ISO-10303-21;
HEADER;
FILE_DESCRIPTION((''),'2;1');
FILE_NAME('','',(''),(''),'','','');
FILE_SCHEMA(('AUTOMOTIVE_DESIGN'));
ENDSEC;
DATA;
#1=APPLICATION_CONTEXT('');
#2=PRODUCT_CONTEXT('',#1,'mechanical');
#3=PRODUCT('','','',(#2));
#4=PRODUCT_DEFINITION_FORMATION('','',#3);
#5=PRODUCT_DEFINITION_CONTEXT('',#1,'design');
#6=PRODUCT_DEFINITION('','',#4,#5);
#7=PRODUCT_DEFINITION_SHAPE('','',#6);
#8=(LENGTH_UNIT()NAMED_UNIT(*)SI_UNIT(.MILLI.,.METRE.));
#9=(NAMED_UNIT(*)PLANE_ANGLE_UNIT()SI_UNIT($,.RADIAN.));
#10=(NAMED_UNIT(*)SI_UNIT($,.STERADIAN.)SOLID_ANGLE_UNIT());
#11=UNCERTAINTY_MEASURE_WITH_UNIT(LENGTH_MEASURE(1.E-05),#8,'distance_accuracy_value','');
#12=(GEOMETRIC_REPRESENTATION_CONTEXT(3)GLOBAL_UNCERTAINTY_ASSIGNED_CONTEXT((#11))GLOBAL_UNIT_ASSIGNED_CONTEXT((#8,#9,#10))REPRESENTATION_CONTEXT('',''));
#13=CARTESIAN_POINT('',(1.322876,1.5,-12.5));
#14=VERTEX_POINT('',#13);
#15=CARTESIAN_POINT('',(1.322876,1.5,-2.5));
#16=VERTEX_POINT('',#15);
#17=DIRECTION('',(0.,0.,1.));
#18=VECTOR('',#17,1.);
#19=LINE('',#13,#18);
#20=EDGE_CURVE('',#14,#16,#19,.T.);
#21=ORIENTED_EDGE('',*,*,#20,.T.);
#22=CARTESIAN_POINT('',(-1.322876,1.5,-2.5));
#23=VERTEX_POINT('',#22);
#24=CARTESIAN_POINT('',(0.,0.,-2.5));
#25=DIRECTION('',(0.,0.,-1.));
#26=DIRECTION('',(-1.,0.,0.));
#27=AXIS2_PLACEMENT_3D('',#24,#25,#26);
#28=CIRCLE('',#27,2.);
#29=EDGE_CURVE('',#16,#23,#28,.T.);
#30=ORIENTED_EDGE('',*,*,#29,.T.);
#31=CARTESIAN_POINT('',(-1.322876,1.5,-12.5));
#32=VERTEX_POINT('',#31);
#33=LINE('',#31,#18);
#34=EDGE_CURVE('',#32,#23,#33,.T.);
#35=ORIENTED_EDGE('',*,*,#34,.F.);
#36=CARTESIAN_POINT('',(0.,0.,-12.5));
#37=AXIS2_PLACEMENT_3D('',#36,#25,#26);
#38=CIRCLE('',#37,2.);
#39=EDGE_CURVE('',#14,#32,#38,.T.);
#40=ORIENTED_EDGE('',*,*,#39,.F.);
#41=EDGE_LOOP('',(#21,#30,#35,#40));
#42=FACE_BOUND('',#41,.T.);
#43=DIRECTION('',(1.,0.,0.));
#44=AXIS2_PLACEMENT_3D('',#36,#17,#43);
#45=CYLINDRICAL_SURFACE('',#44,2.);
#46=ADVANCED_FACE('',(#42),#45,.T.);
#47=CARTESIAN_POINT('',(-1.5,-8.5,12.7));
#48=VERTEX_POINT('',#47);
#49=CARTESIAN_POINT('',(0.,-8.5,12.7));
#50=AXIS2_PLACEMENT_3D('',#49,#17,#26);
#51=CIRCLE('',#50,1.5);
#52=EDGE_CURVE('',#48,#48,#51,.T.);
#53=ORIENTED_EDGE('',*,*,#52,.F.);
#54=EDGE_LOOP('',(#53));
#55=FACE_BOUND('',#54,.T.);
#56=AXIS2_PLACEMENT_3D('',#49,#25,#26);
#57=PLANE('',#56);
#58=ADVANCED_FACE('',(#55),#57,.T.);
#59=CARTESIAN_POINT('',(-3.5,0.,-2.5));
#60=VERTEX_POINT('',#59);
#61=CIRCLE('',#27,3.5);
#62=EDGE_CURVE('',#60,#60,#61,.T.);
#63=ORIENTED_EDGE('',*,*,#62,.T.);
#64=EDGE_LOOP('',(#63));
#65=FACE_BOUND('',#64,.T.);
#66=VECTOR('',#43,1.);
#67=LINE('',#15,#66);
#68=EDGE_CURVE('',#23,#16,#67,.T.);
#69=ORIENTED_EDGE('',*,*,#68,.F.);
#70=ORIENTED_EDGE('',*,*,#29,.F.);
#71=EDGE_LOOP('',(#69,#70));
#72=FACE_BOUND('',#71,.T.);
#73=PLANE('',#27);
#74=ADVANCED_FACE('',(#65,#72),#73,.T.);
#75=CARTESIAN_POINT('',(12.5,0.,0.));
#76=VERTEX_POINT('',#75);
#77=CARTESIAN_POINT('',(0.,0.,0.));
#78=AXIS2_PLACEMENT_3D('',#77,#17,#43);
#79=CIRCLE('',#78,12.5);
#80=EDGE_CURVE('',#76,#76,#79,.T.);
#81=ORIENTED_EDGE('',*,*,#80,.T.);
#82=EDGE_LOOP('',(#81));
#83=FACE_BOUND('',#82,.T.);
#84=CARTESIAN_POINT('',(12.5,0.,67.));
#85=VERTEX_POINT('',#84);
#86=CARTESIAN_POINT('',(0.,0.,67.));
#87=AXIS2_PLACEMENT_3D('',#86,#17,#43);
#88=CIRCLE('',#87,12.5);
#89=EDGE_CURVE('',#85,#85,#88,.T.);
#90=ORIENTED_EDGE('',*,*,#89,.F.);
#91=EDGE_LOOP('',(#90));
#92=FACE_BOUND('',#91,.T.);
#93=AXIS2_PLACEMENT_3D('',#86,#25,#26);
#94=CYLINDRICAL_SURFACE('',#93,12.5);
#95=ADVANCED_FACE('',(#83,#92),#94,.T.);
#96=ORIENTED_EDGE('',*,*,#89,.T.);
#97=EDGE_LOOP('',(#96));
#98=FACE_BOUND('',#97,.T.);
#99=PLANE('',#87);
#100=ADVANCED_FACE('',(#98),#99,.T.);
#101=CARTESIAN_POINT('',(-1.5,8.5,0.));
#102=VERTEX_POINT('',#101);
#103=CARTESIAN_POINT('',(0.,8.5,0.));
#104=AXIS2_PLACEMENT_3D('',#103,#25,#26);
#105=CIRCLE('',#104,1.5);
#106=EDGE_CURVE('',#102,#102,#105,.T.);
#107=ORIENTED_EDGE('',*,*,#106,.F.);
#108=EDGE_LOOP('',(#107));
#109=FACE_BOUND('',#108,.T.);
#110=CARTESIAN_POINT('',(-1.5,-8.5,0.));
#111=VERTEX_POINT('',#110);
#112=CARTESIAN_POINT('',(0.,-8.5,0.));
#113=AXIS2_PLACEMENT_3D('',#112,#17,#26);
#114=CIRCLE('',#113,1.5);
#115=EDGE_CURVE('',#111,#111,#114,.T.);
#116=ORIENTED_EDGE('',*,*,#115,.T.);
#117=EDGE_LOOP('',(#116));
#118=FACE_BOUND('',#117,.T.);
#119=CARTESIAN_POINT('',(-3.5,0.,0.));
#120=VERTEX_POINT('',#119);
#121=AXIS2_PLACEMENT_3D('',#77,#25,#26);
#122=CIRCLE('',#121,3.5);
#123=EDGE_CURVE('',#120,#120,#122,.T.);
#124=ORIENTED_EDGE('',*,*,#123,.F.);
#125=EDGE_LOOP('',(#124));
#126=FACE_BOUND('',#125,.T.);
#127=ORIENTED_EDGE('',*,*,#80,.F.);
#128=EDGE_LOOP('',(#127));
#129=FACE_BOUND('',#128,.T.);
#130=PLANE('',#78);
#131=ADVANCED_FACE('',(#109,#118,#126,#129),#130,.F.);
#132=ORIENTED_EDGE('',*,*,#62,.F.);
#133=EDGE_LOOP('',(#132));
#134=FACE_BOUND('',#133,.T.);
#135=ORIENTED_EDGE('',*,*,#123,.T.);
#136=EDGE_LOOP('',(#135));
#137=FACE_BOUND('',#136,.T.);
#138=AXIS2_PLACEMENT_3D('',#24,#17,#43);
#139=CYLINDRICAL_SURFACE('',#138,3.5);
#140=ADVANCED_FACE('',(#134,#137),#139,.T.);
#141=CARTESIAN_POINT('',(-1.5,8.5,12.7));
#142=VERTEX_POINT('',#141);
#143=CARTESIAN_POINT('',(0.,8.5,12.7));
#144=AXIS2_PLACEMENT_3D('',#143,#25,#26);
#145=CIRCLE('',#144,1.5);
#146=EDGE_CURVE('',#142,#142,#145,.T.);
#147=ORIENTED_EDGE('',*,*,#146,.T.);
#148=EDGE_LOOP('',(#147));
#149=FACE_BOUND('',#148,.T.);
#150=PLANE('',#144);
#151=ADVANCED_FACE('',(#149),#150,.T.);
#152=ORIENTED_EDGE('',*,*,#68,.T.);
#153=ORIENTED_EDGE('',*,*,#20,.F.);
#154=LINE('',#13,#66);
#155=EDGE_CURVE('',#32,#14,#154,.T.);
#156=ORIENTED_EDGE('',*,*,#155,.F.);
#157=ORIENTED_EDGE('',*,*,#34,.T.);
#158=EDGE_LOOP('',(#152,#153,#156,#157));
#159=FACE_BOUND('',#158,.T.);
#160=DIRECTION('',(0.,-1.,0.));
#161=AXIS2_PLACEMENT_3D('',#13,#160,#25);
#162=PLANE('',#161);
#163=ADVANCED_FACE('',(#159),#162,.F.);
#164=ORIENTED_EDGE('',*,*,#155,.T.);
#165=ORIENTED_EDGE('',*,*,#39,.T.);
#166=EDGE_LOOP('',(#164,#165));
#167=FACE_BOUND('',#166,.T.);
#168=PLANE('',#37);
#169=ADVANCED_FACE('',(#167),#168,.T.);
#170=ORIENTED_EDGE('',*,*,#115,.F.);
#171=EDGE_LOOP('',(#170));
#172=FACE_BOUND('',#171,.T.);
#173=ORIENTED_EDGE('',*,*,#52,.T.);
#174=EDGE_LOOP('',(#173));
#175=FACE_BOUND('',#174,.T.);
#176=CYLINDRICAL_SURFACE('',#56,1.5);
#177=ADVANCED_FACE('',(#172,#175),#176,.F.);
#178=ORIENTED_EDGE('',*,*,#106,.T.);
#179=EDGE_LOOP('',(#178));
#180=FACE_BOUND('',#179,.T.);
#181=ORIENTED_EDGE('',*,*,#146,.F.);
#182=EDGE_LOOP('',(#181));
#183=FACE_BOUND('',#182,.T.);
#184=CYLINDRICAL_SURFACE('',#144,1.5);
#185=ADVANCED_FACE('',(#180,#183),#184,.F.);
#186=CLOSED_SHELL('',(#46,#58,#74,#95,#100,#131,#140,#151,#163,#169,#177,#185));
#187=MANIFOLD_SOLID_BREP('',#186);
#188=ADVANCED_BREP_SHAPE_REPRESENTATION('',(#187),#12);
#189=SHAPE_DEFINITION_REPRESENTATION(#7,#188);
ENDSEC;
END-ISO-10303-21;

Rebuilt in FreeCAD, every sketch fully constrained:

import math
import FreeCAD as App
import Part
import Sketcher
from FreeCAD import Vector
Q = App.Units.Quantity

doc = App.newDocument("Part")
body = doc.addObject("PartDesign::Body", "Body")

# Sketch on XY plane
sketch1 = body.newObject("Sketcher::SketchObject", "Sketch")
sketch1.AttachmentSupport = (doc.getObject("XY_Plane"), [""])
sketch1.MapMode = "FlatFace"
sketch1.addGeometry(Part.Circle(Vector(0, 0, 0), Vector(0, 0, 1), 12.5), False)
sketch1.addConstraint([
    Sketcher.Constraint("Coincident", 0, 3, -1, 1),
    Sketcher.Constraint("Diameter", 0, Q("25 mm")),
])
pad1 = body.newObject("PartDesign::Pad", "Pad")
pad1.Profile = sketch1
pad1.Length = 67

# Sketch on XY plane
sketch2 = body.newObject("Sketcher::SketchObject", "Sketch001")
sketch2.AttachmentSupport = (doc.getObject("XY_Plane"), [""])
sketch2.MapMode = "FlatFace"
sketch2.addGeometry(Part.Circle(Vector(0, 0, 0), Vector(0, 0, 1), 3.5), False)
sketch2.addConstraint([
    Sketcher.Constraint("Coincident", 0, 3, -1, 1),
    Sketcher.Constraint("Diameter", 0, Q("7 mm")),
])
pad2 = body.newObject("PartDesign::Pad", "Pad001")
pad2.Profile = sketch2
pad2.Length = 2.5
pad2.Reversed = True

# Sketch on XY plane
sketch3 = body.newObject("Sketcher::SketchObject", "Sketch002")
sketch3.AttachmentSupport = (doc.getObject("XY_Plane"), [""])
sketch3.MapMode = "FlatFace"
sketch3.AttachmentOffset = App.Placement(Vector(0, 0, -2.5), App.Rotation())
sketch3.addGeometry([
    Part.LineSegment(Vector(-1.322876, 1.5, 0), Vector(1.322876, 1.5, 0)),
    Part.ArcOfCircle(Part.Circle(Vector(0, 0, 0), Vector(0, 0, 1), 2), math.radians(131.409622), math.radians(408.590378)),
], False)
sketch3.addConstraint([
    Sketcher.Constraint("Coincident", 0, 1, 1, 1),
    Sketcher.Constraint("Coincident", 1, 2, 0, 2),
    Sketcher.Constraint("Horizontal", 0),
    Sketcher.Constraint("Coincident", 1, 3, -1, 1),
    Sketcher.Constraint("Radius", 1, Q("2 mm")),
    Sketcher.Constraint("DistanceY", -1, 1, 0, 1, Q("1.5 mm")),
])
pad3 = body.newObject("PartDesign::Pad", "Pad002")
pad3.Profile = sketch3
pad3.Length = 10
pad3.Reversed = True

# Sketch on XY plane
sketch4 = body.newObject("Sketcher::SketchObject", "Sketch003")
sketch4.AttachmentSupport = (doc.getObject("XY_Plane"), [""])
sketch4.MapMode = "FlatFace"
sketch4.addGeometry(Part.Circle(Vector(0, 8.5, 0), Vector(0, 0, 1), 1.5), False)
sketch4.addConstraint([
    Sketcher.Constraint("PointOnObject", 0, 3, -2),
    Sketcher.Constraint("Diameter", 0, Q("3 mm")),
    Sketcher.Constraint("DistanceY", -1, 1, 0, 3, Q("8.5 mm")),
])
pocket1 = body.newObject("PartDesign::Pocket", "Pocket")
pocket1.Profile = sketch4
pocket1.Length = 12.7
pocket1.Reversed = True
doc.recompute()

mirrored = body.newObject("PartDesign::Mirrored", "Mirrored")
mirrored.Originals = [pocket1]
mirrored.MirrorPlane = (doc.getObject("XZ_Plane"), [""])
body.Tip = mirrored

doc.recompute()
